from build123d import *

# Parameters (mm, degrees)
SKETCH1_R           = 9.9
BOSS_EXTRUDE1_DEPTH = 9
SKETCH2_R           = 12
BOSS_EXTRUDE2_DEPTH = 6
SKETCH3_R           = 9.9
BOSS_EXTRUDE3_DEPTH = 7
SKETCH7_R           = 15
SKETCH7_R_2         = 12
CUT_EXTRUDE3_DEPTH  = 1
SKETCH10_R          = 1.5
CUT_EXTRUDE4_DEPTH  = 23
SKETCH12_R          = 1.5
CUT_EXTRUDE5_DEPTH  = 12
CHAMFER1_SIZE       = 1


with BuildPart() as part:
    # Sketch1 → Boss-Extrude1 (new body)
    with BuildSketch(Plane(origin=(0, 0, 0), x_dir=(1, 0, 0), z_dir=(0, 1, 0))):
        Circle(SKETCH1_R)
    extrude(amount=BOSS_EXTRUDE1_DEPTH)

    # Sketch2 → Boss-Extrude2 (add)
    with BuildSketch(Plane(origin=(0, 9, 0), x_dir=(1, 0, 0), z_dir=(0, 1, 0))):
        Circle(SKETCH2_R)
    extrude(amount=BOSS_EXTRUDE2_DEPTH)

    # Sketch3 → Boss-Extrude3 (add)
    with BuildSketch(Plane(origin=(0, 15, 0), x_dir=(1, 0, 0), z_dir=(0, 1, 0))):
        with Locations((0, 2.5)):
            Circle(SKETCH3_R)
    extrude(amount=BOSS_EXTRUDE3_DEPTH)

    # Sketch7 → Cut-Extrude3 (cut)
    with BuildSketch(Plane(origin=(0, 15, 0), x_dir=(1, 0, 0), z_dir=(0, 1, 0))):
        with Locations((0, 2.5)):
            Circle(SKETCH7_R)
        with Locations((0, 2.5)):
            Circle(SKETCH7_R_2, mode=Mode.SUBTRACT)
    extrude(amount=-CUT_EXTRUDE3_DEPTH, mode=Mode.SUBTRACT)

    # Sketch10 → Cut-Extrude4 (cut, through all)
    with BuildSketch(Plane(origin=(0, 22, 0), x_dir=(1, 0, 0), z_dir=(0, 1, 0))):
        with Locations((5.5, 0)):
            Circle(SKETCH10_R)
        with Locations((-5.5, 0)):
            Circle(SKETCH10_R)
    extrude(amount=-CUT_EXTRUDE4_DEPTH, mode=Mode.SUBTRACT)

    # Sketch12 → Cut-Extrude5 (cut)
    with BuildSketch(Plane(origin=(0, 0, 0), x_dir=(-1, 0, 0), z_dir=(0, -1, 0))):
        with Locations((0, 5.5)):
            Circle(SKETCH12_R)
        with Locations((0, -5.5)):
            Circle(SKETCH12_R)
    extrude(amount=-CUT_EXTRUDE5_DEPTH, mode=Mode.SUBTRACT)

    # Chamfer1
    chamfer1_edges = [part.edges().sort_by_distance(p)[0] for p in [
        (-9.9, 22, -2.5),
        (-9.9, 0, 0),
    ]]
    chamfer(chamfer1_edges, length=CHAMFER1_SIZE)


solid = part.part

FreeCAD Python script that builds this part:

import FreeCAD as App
import Part
import Sketcher

V = App.Vector


def edges_at(feature, points):
    """Names of the edges that pass closest to the given points."""
    edges = feature.Shape.Edges
    near = lambda p: min(range(len(edges)), key=lambda i: edges[i].distToShape(Part.Vertex(*p))[0])
    return sorted({f"Edge{near(p) + 1}" for p in points})

doc = App.newDocument("Part")
body = doc.addObject("PartDesign::Body", "Body")

sketch1 = body.newObject("Sketcher::SketchObject", "Sketch")
sketch1.AttachmentSupport = (doc.getObject("XZ_Plane"), [""])
sketch1.MapMode = "FlatFace"
sketch1.addGeometry(Part.Circle(V(0, 0, 0), V(0, 0, 1), 9.9), False)
sketch1.addConstraint([
    Sketcher.Constraint("Coincident", 0, 3, -1, 1),
    Sketcher.Constraint("Diameter", 0, 19.8),
])
pad1 = body.newObject("PartDesign::Pad", "Pad")
pad1.Profile = sketch1
pad1.Length = 9
pad1.Reversed = True

sketch2 = body.newObject("Sketcher::SketchObject", "Sketch001")
sketch2.AttachmentSupport = (doc.getObject("XZ_Plane"), [""])
sketch2.MapMode = "FlatFace"
sketch2.AttachmentOffset = App.Placement(V(0, 0, -9), App.Rotation())
sketch2.addGeometry(Part.Circle(V(0, 0, 0), V(0, 0, 1), 12), False)
sketch2.addConstraint([
    Sketcher.Constraint("Coincident", 0, 3, -1, 1),
    Sketcher.Constraint("Diameter", 0, 24.0),
])
pad2 = body.newObject("PartDesign::Pad", "Pad001")
pad2.Profile = sketch2
pad2.Length = 6
pad2.Reversed = True

sketch3 = body.newObject("Sketcher::SketchObject", "Sketch002")
sketch3.AttachmentSupport = (doc.getObject("XZ_Plane"), [""])
sketch3.MapMode = "FlatFace"
sketch3.AttachmentOffset = App.Placement(V(0, 0, -15), App.Rotation())
sketch3.addGeometry(Part.Circle(V(0, -2.5, 0), V(0, 0, 1), 9.9), False)
sketch3.addConstraint([
    Sketcher.Constraint("PointOnObject", 0, 3, -2),
    Sketcher.Constraint("Diameter", 0, 19.8),
    Sketcher.Constraint("DistanceY", 0, 3, -1, 1, 2.5),
])
pad3 = body.newObject("PartDesign::Pad", "Pad002")
pad3.Profile = sketch3
pad3.Length = 7
pad3.Reversed = True

sketch4 = body.newObject("Sketcher::SketchObject", "Sketch003")
sketch4.AttachmentSupport = (doc.getObject("XZ_Plane"), [""])
sketch4.MapMode = "FlatFace"
sketch4.AttachmentOffset = App.Placement(V(0, 0, -15), App.Rotation())
sketch4.addGeometry([
    Part.Circle(V(0, -2.5, 0), V(0, 0, 1), 15),
    Part.Circle(V(0, -2.5, 0), V(0, 0, 1), 12),
], False)
sketch4.addConstraint([
    Sketcher.Constraint("Coincident", 1, 3, 0, 3),
    Sketcher.Constraint("PointOnObject", 0, 3, -2),
    Sketcher.Constraint("Diameter", 0, 30.0),
    Sketcher.Constraint("Diameter", 1, 24.0),
    Sketcher.Constraint("DistanceY", 0, 3, -1, 1, 2.5),
])
pocket1 = body.newObject("PartDesign::Pocket", "Pocket")
pocket1.Profile = sketch4
pocket1.Length = 1
pocket1.Reversed = True

sketch5 = body.newObject("Sketcher::SketchObject", "Sketch004")
sketch5.AttachmentSupport = (doc.getObject("XZ_Plane"), [""])
sketch5.MapMode = "FlatFace"
sketch5.AttachmentOffset = App.Placement(V(0, 0, -22), App.Rotation())
sketch5.addGeometry([
    Part.Circle(V(5.5, 0, 0), V(0, 0, 1), 1.5),
    Part.Circle(V(-5.5, 0, 0), V(0, 0, 1), 1.5),
], False)
sketch5.addConstraint([
    Sketcher.Constraint("Equal", 0, 1),
    Sketcher.Constraint("Symmetric", 0, 3, 1, 3, -1, 1),
    Sketcher.Constraint("PointOnObject", 0, 3, -1),
    Sketcher.Constraint("Diameter", 0, 3.0),
    Sketcher.Constraint("DistanceX", 1, 3, 0, 3, 11.0),
])
pocket2 = body.newObject("PartDesign::Pocket", "Pocket001")
pocket2.Profile = sketch5
pocket2.Type = "ThroughAll"
pocket2.Reversed = True

sketch6 = body.newObject("Sketcher::SketchObject", "Sketch005")
sketch6.AttachmentSupport = (doc.getObject("XZ_Plane"), [""])
sketch6.MapMode = "FlatFace"
sketch6.addGeometry([
    Part.Circle(V(0, -5.5, 0), V(0, 0, 1), 1.5),
    Part.Circle(V(0, 5.5, 0), V(0, 0, 1), 1.5),
], False)
sketch6.addConstraint([
    Sketcher.Constraint("Equal", 0, 1),
    Sketcher.Constraint("Symmetric", 0, 3, 1, 3, -1, 1),
    Sketcher.Constraint("PointOnObject", 0, 3, -2),
    Sketcher.Constraint("Diameter", 0, 3.0),
    Sketcher.Constraint("DistanceY", 0, 3, 1, 3, 11.0),
])
pocket3 = body.newObject("PartDesign::Pocket", "Pocket002")
pocket3.Profile = sketch6
pocket3.Length = 12
doc.recompute()

chamfer = body.newObject("PartDesign::Chamfer", "Chamfer")
chamfer.Base = (pocket3, edges_at(pocket3, [(-9.9, 22, -2.5), (-9.9, 0, 0)]))
chamfer.Size = 1

doc.recompute()
